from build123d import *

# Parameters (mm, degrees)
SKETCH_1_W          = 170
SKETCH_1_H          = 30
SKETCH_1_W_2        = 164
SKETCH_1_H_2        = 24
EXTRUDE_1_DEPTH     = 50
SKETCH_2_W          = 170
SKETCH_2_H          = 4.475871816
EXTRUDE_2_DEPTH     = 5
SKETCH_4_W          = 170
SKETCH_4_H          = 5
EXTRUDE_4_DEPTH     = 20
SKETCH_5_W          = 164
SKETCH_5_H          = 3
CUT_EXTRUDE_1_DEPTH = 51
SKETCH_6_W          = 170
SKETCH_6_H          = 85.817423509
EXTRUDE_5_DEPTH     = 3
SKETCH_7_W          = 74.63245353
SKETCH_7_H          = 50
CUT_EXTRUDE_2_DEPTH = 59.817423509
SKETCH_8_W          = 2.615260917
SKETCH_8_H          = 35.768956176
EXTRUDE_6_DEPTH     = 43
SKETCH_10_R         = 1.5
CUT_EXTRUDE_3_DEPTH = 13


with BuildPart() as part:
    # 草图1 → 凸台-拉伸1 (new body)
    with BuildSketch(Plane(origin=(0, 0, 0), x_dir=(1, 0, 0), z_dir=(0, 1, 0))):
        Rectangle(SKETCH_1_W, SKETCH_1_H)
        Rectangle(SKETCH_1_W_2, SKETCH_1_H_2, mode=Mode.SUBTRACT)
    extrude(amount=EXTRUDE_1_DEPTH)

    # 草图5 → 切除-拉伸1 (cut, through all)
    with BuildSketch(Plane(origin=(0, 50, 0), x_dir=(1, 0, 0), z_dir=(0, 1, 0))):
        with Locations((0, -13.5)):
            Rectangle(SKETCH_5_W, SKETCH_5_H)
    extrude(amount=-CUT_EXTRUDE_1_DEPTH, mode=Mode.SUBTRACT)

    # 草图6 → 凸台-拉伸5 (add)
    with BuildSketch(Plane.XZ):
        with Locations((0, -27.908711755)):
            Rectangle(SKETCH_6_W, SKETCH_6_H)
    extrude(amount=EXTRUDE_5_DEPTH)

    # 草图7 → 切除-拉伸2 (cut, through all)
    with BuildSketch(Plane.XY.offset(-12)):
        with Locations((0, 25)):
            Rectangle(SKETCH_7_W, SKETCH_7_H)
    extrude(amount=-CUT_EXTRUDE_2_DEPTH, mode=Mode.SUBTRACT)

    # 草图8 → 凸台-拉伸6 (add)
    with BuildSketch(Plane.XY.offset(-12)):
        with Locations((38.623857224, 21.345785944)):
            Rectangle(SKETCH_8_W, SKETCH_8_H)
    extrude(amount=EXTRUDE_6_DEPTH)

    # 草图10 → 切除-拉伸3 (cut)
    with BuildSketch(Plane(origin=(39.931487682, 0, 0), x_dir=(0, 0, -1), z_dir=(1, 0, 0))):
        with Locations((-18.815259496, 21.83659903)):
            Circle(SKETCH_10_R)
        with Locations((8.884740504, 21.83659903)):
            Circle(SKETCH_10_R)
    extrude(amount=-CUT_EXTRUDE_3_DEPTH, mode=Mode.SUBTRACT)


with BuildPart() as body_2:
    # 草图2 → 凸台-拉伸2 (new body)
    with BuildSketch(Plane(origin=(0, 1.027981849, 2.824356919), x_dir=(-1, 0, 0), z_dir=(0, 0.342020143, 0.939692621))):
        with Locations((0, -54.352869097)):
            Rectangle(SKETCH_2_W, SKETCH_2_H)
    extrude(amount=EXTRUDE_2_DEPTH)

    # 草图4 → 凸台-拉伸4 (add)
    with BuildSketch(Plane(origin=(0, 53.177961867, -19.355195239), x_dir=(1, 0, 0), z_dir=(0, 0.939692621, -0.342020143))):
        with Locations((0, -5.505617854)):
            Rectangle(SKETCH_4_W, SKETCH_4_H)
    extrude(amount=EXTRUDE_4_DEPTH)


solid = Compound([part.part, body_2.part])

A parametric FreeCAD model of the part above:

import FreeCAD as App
import Part
import Sketcher
Q = App.Units.Quantity

doc = App.newDocument("Part")
params = doc.addObject("Spreadsheet::Sheet", "Params")
for row, (alias, value) in enumerate([
    ("sketch1_width", "170 mm"),
    ("sketch1_width2", "164 mm"),
    ("sketch1_height", "30 mm"),
    ("sketch1_height2", "24 mm"),
    ("pad1_length", "50 mm"),
    ("sketch2_width", "164 mm"),
    ("sketch2_height", "3 mm"),
    ("sketch3_width", "170 mm"),
    ("pad2_length", "3 mm"),
    ("sketch4_height", "50 mm"),
    ("pad3_length", "43 mm"),
    ("sketch6_diameter", "3 mm"),
    ("pocket3_length", "13 mm"),
    ("sketch7_width", "170 mm"),
    ("pad4_length", "5 mm"),
    ("sketch8_width", "170 mm"),
    ("sketch8_height", "5 mm"),
    ("pad5_length", "20 mm"),
], start=1):
    params.set(f"A{row}", alias)
    params.set(f"B{row}", "=" + value)
    params.setAlias(f"B{row}", alias)

body = doc.addObject("PartDesign::Body", "Body")

# Sketch on XZ plane
sketch1 = body.newObject("Sketcher::SketchObject", "Sketch")
sketch1.AttachmentSupport = (doc.getObject("XZ_Plane"), [""])
sketch1.MapMode = "FlatFace"
sketch1.addGeometry([
    Part.LineSegment(App.Vector(-85, -15, 0), App.Vector(-85, 15, 0)),  # 0
    Part.LineSegment(App.Vector(-85, 15, 0), App.Vector(85, 15, 0)),  # 1
    Part.LineSegment(App.Vector(85, 15, 0), App.Vector(85, -15, 0)),  # 2
    Part.LineSegment(App.Vector(85, -15, 0), App.Vector(-85, -15, 0)),  # 3
    Part.LineSegment(App.Vector(82, 12, 0), App.Vector(-82, 12, 0)),  # 4
    Part.LineSegment(App.Vector(-82, 12, 0), App.Vector(-82, -12, 0)),  # 5
    Part.LineSegment(App.Vector(-82, -12, 0), App.Vector(82, -12, 0)),  # 6
    Part.LineSegment(App.Vector(82, -12, 0), App.Vector(82, 12, 0)),  # 7
], False)
sketch1.addConstraint([
    Sketcher.Constraint("Coincident", 0, 2, 1, 1),
    Sketcher.Constraint("Coincident", 1, 2, 2, 1),
    Sketcher.Constraint("Coincident", 2, 2, 3, 1),
    Sketcher.Constraint("Coincident", 3, 2, 0, 1),
    Sketcher.Constraint("Coincident", 4, 2, 5, 1),
    Sketcher.Constraint("Coincident", 5, 2, 6, 1),
    Sketcher.Constraint("Coincident", 6, 2, 7, 1),
    Sketcher.Constraint("Coincident", 7, 2, 4, 1),
    Sketcher.Constraint("Vertical", 0),
    Sketcher.Constraint("Horizontal", 1),
    Sketcher.Constraint("Vertical", 2),
    Sketcher.Constraint("Horizontal", 3),
    Sketcher.Constraint("Horizontal", 4),
    Sketcher.Constraint("Vertical", 5),
    Sketcher.Constraint("Horizontal", 6),
    Sketcher.Constraint("Vertical", 7),
    Sketcher.Constraint("Symmetric", 0, 2, 2, 2, -1, 1),
    Sketcher.Constraint("Symmetric", 4, 2, 6, 2, -1, 1),
    Sketcher.Constraint("DistanceX", 1, 1, 1, 2, Q("170 mm")),
    Sketcher.Constraint("DistanceX", 4, 2, 4, 1, Q("164 mm")),
    Sketcher.Constraint("DistanceY", 0, 1, 0, 2, Q("30 mm")),
    Sketcher.Constraint("DistanceY", 5, 2, 5, 1, Q("24 mm")),
])
sketch1.setExpression("Constraints[18]", "Params.sketch1_width")
sketch1.setExpression("Constraints[19]", "Params.sketch1_width2")
sketch1.setExpression("Constraints[20]", "Params.sketch1_height")
sketch1.setExpression("Constraints[21]", "Params.sketch1_height2")
pad1 = body.newObject("PartDesign::Pad", "Pad")
pad1.Profile = sketch1
pad1.setExpression("Length", "Params.pad1_length")
pad1.Reversed = True

# Sketch on XZ plane
sketch2 = body.newObject("Sketcher::SketchObject", "Sketch001")
sketch2.AttachmentSupport = (doc.getObject("XZ_Plane"), [""])
sketch2.MapMode = "FlatFace"
sketch2.AttachmentOffset = App.Placement(App.Vector(0, 0, -50), App.Rotation())
sketch2.addGeometry([
    Part.LineSegment(App.Vector(-82, 12, 0), App.Vector(-82, 15, 0)),
    Part.LineSegment(App.Vector(-82, 15, 0), App.Vector(82, 15, 0)),
    Part.LineSegment(App.Vector(82, 15, 0), App.Vector(82, 12, 0)),
    Part.LineSegment(App.Vector(82, 12, 0), App.Vector(-82, 12, 0)),
], False)
sketch2.addConstraint([
    Sketcher.Constraint("Coincident", 0, 2, 1, 1),
    Sketcher.Constraint("Coincident", 1, 2, 2, 1),
    Sketcher.Constraint("Coincident", 2, 2, 3, 1),
    Sketcher.Constraint("Coincident", 3, 2, 0, 1),
    Sketcher.Constraint("Vertical", 0),
    Sketcher.Constraint("Horizontal", 1),
    Sketcher.Constraint("Vertical", 2),
    Sketcher.Constraint("Horizontal", 3),
    Sketcher.Constraint("DistanceX", 1, 1, 1, 2, Q("164 mm")),
    Sketcher.Constraint("DistanceY", 0, 1, 0, 2, Q("3 mm")),
    Sketcher.Constraint("DistanceX", 0, 2, -1, 1, Q("82 mm")),
    Sketcher.Constraint("DistanceY", -1, 1, 0, 2, Q("15 mm")),
])
sketch2.setExpression("Constraints[8]", "Params.sketch2_width")
sketch2.setExpression("Constraints[9]", "Params.sketch2_height")
pocket1 = body.newObject("PartDesign::Pocket", "Pocket")
pocket1.Profile = sketch2
pocket1.Type = "ThroughAll"
pocket1.Reversed = True

# Sketch on XZ plane
sketch3 = body.newObject("Sketcher::SketchObject", "Sketch002")
sketch3.AttachmentSupport = (doc.getObject("XZ_Plane"), [""])
sketch3.MapMode = "FlatFace"
sketch3.addGeometry([
    Part.LineSegment(App.Vector(-85, 15, 0), App.Vector(-85, -70.817424, 0)),
    Part.LineSegment(App.Vector(-85, -70.817424, 0), App.Vector(85, -70.817424, 0)),
    Part.LineSegment(App.Vector(85, -70.817424, 0), App.Vector(85, 15, 0)),
    Part.LineSegment(App.Vector(85, 15, 0), App.Vector(-85, 15, 0)),
], False)
sketch3.addConstraint([
    Sketcher.Constraint("Coincident", 0, 2, 1, 1),
    Sketcher.Constraint("Coincident", 1, 2, 2, 1),
    Sketcher.Constraint("Coincident", 2, 2, 3, 1),
    Sketcher.Constraint("Coincident", 3, 2, 0, 1),
    Sketcher.Constraint("Vertical", 0),
    Sketcher.Constraint("Horizontal", 1),
    Sketcher.Constraint("Vertical", 2),
    Sketcher.Constraint("Horizontal", 3),
    Sketcher.Constraint("DistanceX", 1, 1, 1, 2, Q("170 mm")),
    Sketcher.Constraint("DistanceX", 0, 2, -1, 1, Q("85 mm")),
    Sketcher.Constraint("DistanceY", -1, 1, 2, 2, Q("15 mm")),
    Sketcher.Constraint("DistanceY", 0, 2, 0, 1, Q("85.817424 mm")),
])
sketch3.setExpression("Constraints[8]", "Params.sketch3_width")
pad2 = body.newObject("PartDesign::Pad", "Pad001")
pad2.Profile = sketch3
pad2.setExpression("Length", "Params.pad2_length")

# Sketch on XY plane
sketch4 = body.newObject("Sketcher::SketchObject", "Sketch003")
sketch4.AttachmentSupport = (doc.getObject("XY_Plane"), [""])
sketch4.MapMode = "FlatFace"
sketch4.AttachmentOffset = App.Placement(App.Vector(0, 0, -12), App.Rotation())
sketch4.addGeometry([
    Part.LineSegment(App.Vector(-37.316227, 50, 0), App.Vector(-37.316227, 0, 0)),
    Part.LineSegment(App.Vector(-37.316227, 0, 0), App.Vector(37.316227, 0, 0)),
    Part.LineSegment(App.Vector(37.316227, 0, 0), App.Vector(37.316227, 50, 0)),
    Part.LineSegment(App.Vector(37.316227, 50, 0), App.Vector(-37.316227, 50, 0)),
], False)
sketch4.addConstraint([
    Sketcher.Constraint("Coincident", 0, 2, 1, 1),
    Sketcher.Constraint("Coincident", 1, 2, 2, 1),
    Sketcher.Constraint("Coincident", 2, 2, 3, 1),
    Sketcher.Constraint("Coincident", 3, 2, 0, 1),
    Sketcher.Constraint("Vertical", 0),
    Sketcher.Constraint("Horizontal", 1),
    Sketcher.Constraint("Vertical", 2),
    Sketcher.Constraint("Horizontal", 3),
    Sketcher.Constraint("Symmetric", 0, 2, 1, 2, -1, 1),
    Sketcher.Constraint("DistanceY", 0, 2, 0, 1, Q("50 mm")),
    Sketcher.Constraint("DistanceX", 1, 1, 1, 2, Q("74.632454 mm")),
])
sketch4.setExpression("Constraints[9]", "Params.sketch4_height")
pocket2 = body.newObject("PartDesign::Pocket", "Pocket001")
pocket2.Profile = sketch4
pocket2.Type = "ThroughAll"

# Sketch on XY plane
sketch5 = body.newObject("Sketcher::SketchObject", "Sketch004")
sketch5.AttachmentSupport = (doc.getObject("XY_Plane"), [""])
sketch5.MapMode = "FlatFace"
sketch5.AttachmentOffset = App.Placement(App.Vector(0, 0, -12), App.Rotation())
sketch5.addGeometry([
    Part.LineSegment(App.Vector(37.316227, 39.230264, 0), App.Vector(37.316227, 3.461308, 0)),
    Part.LineSegment(App.Vector(37.316227, 3.461308, 0), App.Vector(39.931488, 3.461308, 0)),
    Part.LineSegment(App.Vector(39.931488, 3.461308, 0), App.Vector(39.931488, 39.230264, 0)),
    Part.LineSegment(App.Vector(39.931488, 39.230264, 0), App.Vector(37.316227, 39.230264, 0)),
], False)
sketch5.addConstraint([
    Sketcher.Constraint("Coincident", 0, 2, 1, 1),
    Sketcher.Constraint("Coincident", 1, 2, 2, 1),
    Sketcher.Constraint("Coincident", 2, 2, 3, 1),
    Sketcher.Constraint("Coincident", 3, 2, 0, 1),
    Sketcher.Constraint("Vertical", 0),
    Sketcher.Constraint("Horizontal", 1),
    Sketcher.Constraint("Vertical", 2),
    Sketcher.Constraint("Horizontal", 3),
    Sketcher.Constraint("DistanceX", 1, 1, 1, 2, Q("2.615261 mm")),
    Sketcher.Constraint("DistanceY", 0, 2, 0, 1, Q("35.768956 mm")),
    Sketcher.Constraint("DistanceX", -1, 1, 0, 2, Q("37.316227 mm")),
    Sketcher.Constraint("DistanceY", -1, 1, 0, 2, Q("3.461308 mm")),
])
pad3 = body.newObject("PartDesign::Pad", "Pad002")
pad3.Profile = sketch5
pad3.setExpression("Length", "Params.pad3_length")

# Sketch on YZ plane
sketch6 = body.newObject("Sketcher::SketchObject", "Sketch005")
sketch6.AttachmentSupport = (doc.getObject("YZ_Plane"), [""])
sketch6.MapMode = "FlatFace"
sketch6.AttachmentOffset = App.Placement(App.Vector(0, 0, 39.931488), App.Rotation())
sketch6.addGeometry([
    Part.Circle(App.Vector(21.836599, 18.815259, 0), App.Vector(0, 0, 1), 1.5),
    Part.Circle(App.Vector(21.836599, -8.884741, 0), App.Vector(0, 0, 1), 1.5),
], False)
sketch6.addConstraint([
    Sketcher.Constraint("Equal", 0, 1),
    Sketcher.Constraint("Vertical", 0, 3, 1, 3),
    Sketcher.Constraint("Diameter", 0, Q("3 mm")),
    Sketcher.Constraint("DistanceY", 1, 3, 0, 3, Q("27.7 mm")),
    Sketcher.Constraint("DistanceX", -1, 1, 0, 3, Q("21.836599 mm")),
    Sketcher.Constraint("DistanceY", -1, 1, 0, 3, Q("18.815259 mm")),
])
sketch6.setExpression("Constraints[2]", "Params.sketch6_diameter")
pocket3 = body.newObject("PartDesign::Pocket", "Pocket002")
pocket3.Profile = sketch6
pocket3.setExpression("Length", "Params.pocket3_length")
body2 = doc.addObject("PartDesign::Body", "Body001")

# Sketch on an angled plane
sketch7 = body2.newObject("Sketcher::SketchObject", "Sketch006")
sketch7.Placement = App.Placement(App.Vector(0, 1.027982, 2.824357), App.Rotation(App.Vector(-1, 0, 0), App.Vector(0, -0.939692621, 0.342020143), App.Vector(0, 0.342020143, 0.939692621), "ZXY"))
sketch7.addGeometry([
    Part.LineSegment(App.Vector(-85, -52.114933, 0), App.Vector(-85, -56.590805, 0)),
    Part.LineSegment(App.Vector(-85, -56.590805, 0), App.Vector(85, -56.590805, 0)),
    Part.LineSegment(App.Vector(85, -56.590805, 0), App.Vector(85, -52.114933, 0)),
    Part.LineSegment(App.Vector(85, -52.114933, 0), App.Vector(-85, -52.114933, 0)),
], False)
sketch7.addConstraint([
    Sketcher.Constraint("Coincident", 0, 2, 1, 1),
    Sketcher.Constraint("Coincident", 1, 2, 2, 1),
    Sketcher.Constraint("Coincident", 2, 2, 3, 1),
    Sketcher.Constraint("Coincident", 3, 2, 0, 1),
    Sketcher.Constraint("Vertical", 0),
    Sketcher.Constraint("Horizontal", 1),
    Sketcher.Constraint("Vertical", 2),
    Sketcher.Constraint("Horizontal", 3),
    Sketcher.Constraint("DistanceX", 1, 1, 1, 2, Q("170 mm")),
    Sketcher.Constraint("DistanceX", 0, 2, -1, 1, Q("85 mm")),
    Sketcher.Constraint("DistanceY", 0, 2, 0, 1, Q("4.475872 mm")),
    Sketcher.Constraint("DistanceY", 0, 2, -1, 1, Q("56.590805 mm")),
])
sketch7.setExpression("Constraints[8]", "Params.sketch7_width")
pad4 = body2.newObject("PartDesign::Pad", "Pad003")
pad4.Profile = sketch7
pad4.setExpression("Length", "Params.pad4_length")

# Sketch on an angled plane
sketch8 = body2.newObject("Sketcher::SketchObject", "Sketch007")
sketch8.Placement = App.Placement(App.Vector(0, 53.177962, -19.355195), App.Rotation(App.Vector(1, 0, 0), App.Vector(0, -0.342020143, -0.939692621), App.Vector(0, 0.939692621, -0.342020143), "ZXY"))
sketch8.addGeometry([
    Part.LineSegment(App.Vector(-85, -3.005618, 0), App.Vector(-85, -8.005618, 0)),
    Part.LineSegment(App.Vector(-85, -8.005618, 0), App.Vector(85, -8.005618, 0)),
    Part.LineSegment(App.Vector(85, -8.005618, 0), App.Vector(85, -3.005618, 0)),
    Part.LineSegment(App.Vector(85, -3.005618, 0), App.Vector(-85, -3.005618, 0)),
], False)
sketch8.addConstraint([
    Sketcher.Constraint("Coincident", 0, 2, 1, 1),
    Sketcher.Constraint("Coincident", 1, 2, 2, 1),
    Sketcher.Constraint("Coincident", 2, 2, 3, 1),
    Sketcher.Constraint("Coincident", 3, 2, 0, 1),
    Sketcher.Constraint("Vertical", 0),
    Sketcher.Constraint("Horizontal", 1),
    Sketcher.Constraint("Vertical", 2),
    Sketcher.Constraint("Horizontal", 3),
    Sketcher.Constraint("DistanceX", 1, 1, 1, 2, Q("170 mm")),
    Sketcher.Constraint("DistanceY", 0, 2, 0, 1, Q("5 mm")),
    Sketcher.Constraint("DistanceX", 0, 2, -1, 1, Q("85 mm")),
    Sketcher.Constraint("DistanceY", 0, 2, -1, 1, Q("8.005618 mm")),
])
sketch8.setExpression("Constraints[8]", "Params.sketch8_width")
sketch8.setExpression("Constraints[9]", "Params.sketch8_height")
pad5 = body2.newObject("PartDesign::Pad", "Pad004")
pad5.Profile = sketch8
pad5.setExpression("Length", "Params.pad5_length")

doc.recompute()
